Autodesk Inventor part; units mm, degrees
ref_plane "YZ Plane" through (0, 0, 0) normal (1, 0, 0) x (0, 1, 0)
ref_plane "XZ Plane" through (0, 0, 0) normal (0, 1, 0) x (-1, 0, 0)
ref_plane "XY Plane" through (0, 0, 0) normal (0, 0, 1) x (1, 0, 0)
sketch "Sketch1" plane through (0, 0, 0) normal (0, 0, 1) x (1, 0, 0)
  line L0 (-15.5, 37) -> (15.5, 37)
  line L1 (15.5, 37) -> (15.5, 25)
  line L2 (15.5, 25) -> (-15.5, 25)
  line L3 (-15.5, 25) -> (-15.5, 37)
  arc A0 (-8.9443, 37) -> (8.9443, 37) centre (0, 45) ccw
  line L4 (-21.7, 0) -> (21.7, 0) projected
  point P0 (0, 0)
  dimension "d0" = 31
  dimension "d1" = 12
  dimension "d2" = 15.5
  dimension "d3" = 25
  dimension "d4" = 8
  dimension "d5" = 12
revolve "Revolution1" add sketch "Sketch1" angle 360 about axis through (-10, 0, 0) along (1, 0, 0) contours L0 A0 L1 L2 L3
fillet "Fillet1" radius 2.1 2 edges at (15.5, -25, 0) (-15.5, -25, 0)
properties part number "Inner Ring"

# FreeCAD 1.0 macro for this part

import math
import FreeCAD as App
import Part
import Sketcher

V = App.Vector


def edges_at(feature, points):
    """Names of the edges that pass closest to the given points."""
    edges = feature.Shape.Edges
    near = lambda p: min(range(len(edges)), key=lambda i: edges[i].distToShape(Part.Vertex(*p))[0])
    return sorted({f"Edge{near(p) + 1}" for p in points})

doc = App.newDocument("Part")
params = doc.addObject("Spreadsheet::Sheet", "Params")
for row, (alias, value) in enumerate([
    ("sketch1_radius", "12 mm"),
    ("sketch1_width", "31 mm"),
    ("sketch1_height", "12 mm"),
    ("revolution_angle", "360 deg"),
    ("fillet_radius", "2.1 mm"),
], start=1):
    params.set(f"A{row}", alias)
    params.set(f"B{row}", "=" + value)
    params.setAlias(f"B{row}", alias)

body = doc.addObject("PartDesign::Body", "Body")

# Sketch on XY plane
sketch1 = body.newObject("Sketcher::SketchObject", "Sketch")
sketch1.AttachmentSupport = (doc.getObject("XY_Plane"), [""])
sketch1.MapMode = "FlatFace"
sketch1.addGeometry([
    Part.LineSegment(V(-9, 37, 0), V(-16, 37, 0)),  # 0
    Part.LineSegment(V(-16, 37, 0), V(-16, 25, 0)),  # 1
    Part.LineSegment(V(-16, 25, 0), V(16, 25, 0)),  # 2
    Part.LineSegment(V(16, 25, 0), V(16, 37, 0)),  # 3
    Part.LineSegment(V(16, 37, 0), V(9, 37, 0)),  # 4
    Part.ArcOfCircle(Part.Circle(V(0, 45, 0), V(0, 0, 1), 12), math.radians(-138), math.radians(-42)),  # 5
], False)
sketch1.addConstraint([
    Sketcher.Constraint("Coincident", 0, 2, 1, 1),
    Sketcher.Constraint("Coincident", 1, 2, 2, 1),
    Sketcher.Constraint("Coincident", 2, 2, 3, 1),
    Sketcher.Constraint("Coincident", 3, 2, 4, 1),
    Sketcher.Constraint("Coincident", 4, 2, 5, 2),
    Sketcher.Constraint("Coincident", 5, 1, 0, 1),
    Sketcher.Constraint("Horizontal", 0),
    Sketcher.Constraint("Vertical", 1),
    Sketcher.Constraint("Horizontal", 2),
    Sketcher.Constraint("Vertical", 3),
    Sketcher.Constraint("Horizontal", 4),
    Sketcher.Constraint("Symmetric", 0, 2, 3, 2, -2),
    Sketcher.Constraint("PointOnObject", 5, 3, -2),
    Sketcher.Constraint("Radius", 5, 12.0),
    Sketcher.Constraint("DistanceX", 2, 1, 2, 2, 31.0),
    Sketcher.Constraint("DistanceY", 1, 2, 1, 1, 12.0),
    Sketcher.Constraint("DistanceY", -1, 1, 1, 2, 25.0),
    Sketcher.Constraint("DistanceY", 0, 2, 5, 3, 8.0),
])
sketch1.setExpression("Constraints[13]", "Params.sketch1_radius")
sketch1.setExpression("Constraints[14]", "Params.sketch1_width")
sketch1.setExpression("Constraints[15]", "Params.sketch1_height")
revolution = body.newObject("PartDesign::Revolution", "Revolution")
revolution.Profile = sketch1
revolution.ReferenceAxis = (sketch1, ["H_Axis"])
revolution.setExpression("Angle", "Params.revolution_angle")
doc.recompute()

fillet = body.newObject("PartDesign::Fillet", "Fillet")
fillet.Base = (revolution, edges_at(revolution, [(15.5, -25, 0), (-15.5, -25, 0)]))
fillet.setExpression("Radius", "Params.fillet_radius")

doc.recompute()
